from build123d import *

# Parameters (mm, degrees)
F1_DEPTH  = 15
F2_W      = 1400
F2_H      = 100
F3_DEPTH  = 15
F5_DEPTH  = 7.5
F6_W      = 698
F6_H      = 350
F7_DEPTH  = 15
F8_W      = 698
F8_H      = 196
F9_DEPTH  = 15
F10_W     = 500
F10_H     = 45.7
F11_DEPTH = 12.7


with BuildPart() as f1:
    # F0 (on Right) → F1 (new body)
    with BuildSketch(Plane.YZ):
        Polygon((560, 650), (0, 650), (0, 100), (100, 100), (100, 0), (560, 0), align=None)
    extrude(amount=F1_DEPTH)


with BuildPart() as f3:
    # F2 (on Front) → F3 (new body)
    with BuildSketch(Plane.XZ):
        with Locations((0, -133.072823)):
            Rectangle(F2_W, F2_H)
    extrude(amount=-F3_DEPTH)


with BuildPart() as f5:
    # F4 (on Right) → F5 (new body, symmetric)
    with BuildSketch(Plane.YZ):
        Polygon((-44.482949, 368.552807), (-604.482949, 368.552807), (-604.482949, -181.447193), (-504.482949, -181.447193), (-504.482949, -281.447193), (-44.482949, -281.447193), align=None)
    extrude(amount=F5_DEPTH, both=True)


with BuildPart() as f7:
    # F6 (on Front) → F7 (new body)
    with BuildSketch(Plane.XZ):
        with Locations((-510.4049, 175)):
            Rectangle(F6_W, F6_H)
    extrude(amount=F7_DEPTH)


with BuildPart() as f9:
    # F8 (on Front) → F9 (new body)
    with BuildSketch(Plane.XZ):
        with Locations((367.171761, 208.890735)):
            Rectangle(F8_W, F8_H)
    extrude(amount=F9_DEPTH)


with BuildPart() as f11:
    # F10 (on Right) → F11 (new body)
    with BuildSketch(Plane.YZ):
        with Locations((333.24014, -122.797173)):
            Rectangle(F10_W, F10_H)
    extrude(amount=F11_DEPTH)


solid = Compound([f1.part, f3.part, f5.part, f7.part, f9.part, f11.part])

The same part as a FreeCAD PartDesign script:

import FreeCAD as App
import Part
import Sketcher
from FreeCAD import Vector
Q = App.Units.Quantity


def add_polygon(sketch, points):
    """Adds a closed chain of lines whose ends are joined by coincident constraints."""
    first, n = sketch.GeometryCount, len(points)
    for a, b in zip(points, points[1:] + points[:1]):
        sketch.addGeometry(Part.LineSegment(App.Vector(*a, 0), App.Vector(*b, 0)), False)
    for i in range(n):
        sketch.addConstraint(Sketcher.Constraint("Coincident", first + i, 2, first + (i + 1) % n, 1))

doc = App.newDocument("Part")
body = doc.addObject("PartDesign::Body", "Body")

# Sketch on YZ plane
sketch1 = doc.addObject("Sketcher::SketchObject", "Sketch")
body.addObject(sketch1)
sketch1.AttachmentSupport = (doc.YZ_Plane, [""])
sketch1.MapMode = "FlatFace"
add_polygon(sketch1, [(560, 650), (0, 650), (0, 100), (100, 100), (100, 0), (560, 0)])  # lines 0-5
sketch1.addConstraint([
    Sketcher.Constraint("Horizontal", 0),
    Sketcher.Constraint("Vertical", 1),
    Sketcher.Constraint("Horizontal", 2),
    Sketcher.Constraint("Vertical", 3),
    Sketcher.Constraint("Horizontal", 4),
    Sketcher.Constraint("Vertical", 5),
    Sketcher.Constraint("PointOnObject", 0, 2, -2),
    Sketcher.Constraint("PointOnObject", 3, 2, -1),
    Sketcher.Constraint("Equal", 2, 3),
    Sketcher.Constraint("DistanceX", 0, 2, 0, 1, Q("560 mm")),
    Sketcher.Constraint("DistanceX", 2, 1, 2, 2, Q("100 mm")),
    Sketcher.Constraint("DistanceY", 1, 2, 1, 1, Q("550 mm")),
])
pad1 = doc.addObject("PartDesign::Pad", "Pad")
body.addObject(pad1)
pad1.Profile = sketch1
pad1.Length = 15
body2 = doc.addObject("PartDesign::Body", "Body001")

# Sketch on XZ plane
sketch2 = doc.addObject("Sketcher::SketchObject", "Sketch001")
body2.addObject(sketch2)
sketch2.AttachmentSupport = (doc.getObject("XZ_Plane001"), [""])
sketch2.MapMode = "FlatFace"
add_polygon(sketch2, [(-700, -83.072823), (-700, -183.072823), (700, -183.072823), (700, -83.072823)])  # lines 0-3
sketch2.addConstraint([
    Sketcher.Constraint("Vertical", 0),
    Sketcher.Constraint("Horizontal", 1),
    Sketcher.Constraint("Vertical", 2),
    Sketcher.Constraint("Horizontal", 3),
    Sketcher.Constraint("DistanceX", 1, 1, 1, 2, Q("1400 mm")),
    Sketcher.Constraint("DistanceY", 0, 2, 0, 1, Q("100 mm")),
    Sketcher.Constraint("DistanceX", 0, 2, -1, 1, Q("700 mm")),
    Sketcher.Constraint("DistanceY", 0, 2, -1, 1, Q("183.072823 mm")),
])
pad2 = doc.addObject("PartDesign::Pad", "Pad001")
body2.addObject(pad2)
pad2.Profile = sketch2
pad2.Length = 15
pad2.Reversed = True
body3 = doc.addObject("PartDesign::Body", "Body002")

# Sketch on YZ plane
sketch3 = doc.addObject("Sketcher::SketchObject", "Sketch002")
body3.addObject(sketch3)
sketch3.AttachmentSupport = (doc.getObject("YZ_Plane002"), [""])
sketch3.MapMode = "FlatFace"
add_polygon(sketch3, [(-44.482949, 368.552807), (-604.482949, 368.552807), (-604.482949, -181.447193), (-504.482949, -181.447193), (-504.482949, -281.447193), (-44.482949, -281.447193)])  # lines 0-5
sketch3.addConstraint([
    Sketcher.Constraint("Horizontal", 0),
    Sketcher.Constraint("Vertical", 1),
    Sketcher.Constraint("Horizontal", 2),
    Sketcher.Constraint("Vertical", 3),
    Sketcher.Constraint("Horizontal", 4),
    Sketcher.Constraint("Vertical", 5),
    Sketcher.Constraint("Equal", 2, 3),
    Sketcher.Constraint("DistanceX", 0, 2, 0, 1, Q("560 mm")),
    Sketcher.Constraint("DistanceX", 2, 1, 2, 2, Q("100 mm")),
    Sketcher.Constraint("DistanceY", 1, 2, 1, 1, Q("550 mm")),
    Sketcher.Constraint("DistanceX", 0, 2, -1, 1, Q("604.482949 mm")),
    Sketcher.Constraint("DistanceY", -1, 1, 0, 2, Q("368.552807 mm")),
])
pad3 = doc.addObject("PartDesign::Pad", "Pad002")
body3.addObject(pad3)
pad3.Profile = sketch3
pad3.Length = 15
pad3.Midplane = True
body4 = doc.addObject("PartDesign::Body", "Body003")

# Sketch on XZ plane
sketch4 = doc.addObject("Sketcher::SketchObject", "Sketch003")
body4.addObject(sketch4)
sketch4.AttachmentSupport = (doc.getObject("XZ_Plane003"), [""])
sketch4.MapMode = "FlatFace"
add_polygon(sketch4, [(-859.4049, 350), (-859.4049, 0), (-161.4049, 0), (-161.4049, 350)])  # lines 0-3
sketch4.addConstraint([
    Sketcher.Constraint("Vertical", 0),
    Sketcher.Constraint("Horizontal", 1),
    Sketcher.Constraint("Vertical", 2),
    Sketcher.Constraint("Horizontal", 3),
    Sketcher.Constraint("PointOnObject", 0, 2, -1),
    Sketcher.Constraint("DistanceX", 1, 1, 1, 2, Q("698 mm")),
    Sketcher.Constraint("DistanceY", 0, 2, 0, 1, Q("350 mm")),
    Sketcher.Constraint("DistanceX", 0, 2, -1, 1, Q("859.4049 mm")),
])
pad4 = doc.addObject("PartDesign::Pad", "Pad003")
body4.addObject(pad4)
pad4.Profile = sketch4
pad4.Length = 15
body5 = doc.addObject("PartDesign::Body", "Body004")

# Sketch on XZ plane
sketch5 = doc.addObject("Sketcher::SketchObject", "Sketch004")
body5.addObject(sketch5)
sketch5.AttachmentSupport = (doc.getObject("XZ_Plane004"), [""])
sketch5.MapMode = "FlatFace"
add_polygon(sketch5, [(18.171761, 306.890735), (18.171761, 110.890735), (716.171761, 110.890735), (716.171761, 306.890735)])  # lines 0-3
sketch5.addConstraint([
    Sketcher.Constraint("Vertical", 0),
    Sketcher.Constraint("Horizontal", 1),
    Sketcher.Constraint("Vertical", 2),
    Sketcher.Constraint("Horizontal", 3),
    Sketcher.Constraint("DistanceX", 1, 1, 1, 2, Q("698 mm")),
    Sketcher.Constraint("DistanceY", 0, 2, 0, 1, Q("196 mm")),
    Sketcher.Constraint("DistanceX", -1, 1, 0, 2, Q("18.171761 mm")),
    Sketcher.Constraint("DistanceY", -1, 1, 0, 2, Q("110.890735 mm")),
])
pad5 = doc.addObject("PartDesign::Pad", "Pad004")
body5.addObject(pad5)
pad5.Profile = sketch5
pad5.Length = 15
body6 = doc.addObject("PartDesign::Body", "Body005")

# Sketch on YZ plane
sketch6 = doc.addObject("Sketcher::SketchObject", "Sketch005")
body6.addObject(sketch6)
sketch6.AttachmentSupport = (doc.getObject("YZ_Plane005"), [""])
sketch6.MapMode = "FlatFace"
add_polygon(sketch6, [(83.24014, -99.947173), (83.24014, -145.647173), (583.24014, -145.647173), (583.24014, -99.947173)])  # lines 0-3
sketch6.addConstraint([
    Sketcher.Constraint("Vertical", 0),
    Sketcher.Constraint("Horizontal", 1),
    Sketcher.Constraint("Vertical", 2),
    Sketcher.Constraint("Horizontal", 3),
    Sketcher.Constraint("DistanceX", 1, 1, 1, 2, Q("500 mm")),
    Sketcher.Constraint("DistanceY", 0, 2, 0, 1, Q("45.7 mm")),
    Sketcher.Constraint("DistanceX", -1, 1, 0, 2, Q("83.24014 mm")),
    Sketcher.Constraint("DistanceY", 0, 2, -1, 1, Q("145.647173 mm")),
])
pad6 = doc.addObject("PartDesign::Pad", "Pad005")
body6.addObject(pad6)
pad6.Profile = sketch6
pad6.Length = 12.7

doc.recompute()
